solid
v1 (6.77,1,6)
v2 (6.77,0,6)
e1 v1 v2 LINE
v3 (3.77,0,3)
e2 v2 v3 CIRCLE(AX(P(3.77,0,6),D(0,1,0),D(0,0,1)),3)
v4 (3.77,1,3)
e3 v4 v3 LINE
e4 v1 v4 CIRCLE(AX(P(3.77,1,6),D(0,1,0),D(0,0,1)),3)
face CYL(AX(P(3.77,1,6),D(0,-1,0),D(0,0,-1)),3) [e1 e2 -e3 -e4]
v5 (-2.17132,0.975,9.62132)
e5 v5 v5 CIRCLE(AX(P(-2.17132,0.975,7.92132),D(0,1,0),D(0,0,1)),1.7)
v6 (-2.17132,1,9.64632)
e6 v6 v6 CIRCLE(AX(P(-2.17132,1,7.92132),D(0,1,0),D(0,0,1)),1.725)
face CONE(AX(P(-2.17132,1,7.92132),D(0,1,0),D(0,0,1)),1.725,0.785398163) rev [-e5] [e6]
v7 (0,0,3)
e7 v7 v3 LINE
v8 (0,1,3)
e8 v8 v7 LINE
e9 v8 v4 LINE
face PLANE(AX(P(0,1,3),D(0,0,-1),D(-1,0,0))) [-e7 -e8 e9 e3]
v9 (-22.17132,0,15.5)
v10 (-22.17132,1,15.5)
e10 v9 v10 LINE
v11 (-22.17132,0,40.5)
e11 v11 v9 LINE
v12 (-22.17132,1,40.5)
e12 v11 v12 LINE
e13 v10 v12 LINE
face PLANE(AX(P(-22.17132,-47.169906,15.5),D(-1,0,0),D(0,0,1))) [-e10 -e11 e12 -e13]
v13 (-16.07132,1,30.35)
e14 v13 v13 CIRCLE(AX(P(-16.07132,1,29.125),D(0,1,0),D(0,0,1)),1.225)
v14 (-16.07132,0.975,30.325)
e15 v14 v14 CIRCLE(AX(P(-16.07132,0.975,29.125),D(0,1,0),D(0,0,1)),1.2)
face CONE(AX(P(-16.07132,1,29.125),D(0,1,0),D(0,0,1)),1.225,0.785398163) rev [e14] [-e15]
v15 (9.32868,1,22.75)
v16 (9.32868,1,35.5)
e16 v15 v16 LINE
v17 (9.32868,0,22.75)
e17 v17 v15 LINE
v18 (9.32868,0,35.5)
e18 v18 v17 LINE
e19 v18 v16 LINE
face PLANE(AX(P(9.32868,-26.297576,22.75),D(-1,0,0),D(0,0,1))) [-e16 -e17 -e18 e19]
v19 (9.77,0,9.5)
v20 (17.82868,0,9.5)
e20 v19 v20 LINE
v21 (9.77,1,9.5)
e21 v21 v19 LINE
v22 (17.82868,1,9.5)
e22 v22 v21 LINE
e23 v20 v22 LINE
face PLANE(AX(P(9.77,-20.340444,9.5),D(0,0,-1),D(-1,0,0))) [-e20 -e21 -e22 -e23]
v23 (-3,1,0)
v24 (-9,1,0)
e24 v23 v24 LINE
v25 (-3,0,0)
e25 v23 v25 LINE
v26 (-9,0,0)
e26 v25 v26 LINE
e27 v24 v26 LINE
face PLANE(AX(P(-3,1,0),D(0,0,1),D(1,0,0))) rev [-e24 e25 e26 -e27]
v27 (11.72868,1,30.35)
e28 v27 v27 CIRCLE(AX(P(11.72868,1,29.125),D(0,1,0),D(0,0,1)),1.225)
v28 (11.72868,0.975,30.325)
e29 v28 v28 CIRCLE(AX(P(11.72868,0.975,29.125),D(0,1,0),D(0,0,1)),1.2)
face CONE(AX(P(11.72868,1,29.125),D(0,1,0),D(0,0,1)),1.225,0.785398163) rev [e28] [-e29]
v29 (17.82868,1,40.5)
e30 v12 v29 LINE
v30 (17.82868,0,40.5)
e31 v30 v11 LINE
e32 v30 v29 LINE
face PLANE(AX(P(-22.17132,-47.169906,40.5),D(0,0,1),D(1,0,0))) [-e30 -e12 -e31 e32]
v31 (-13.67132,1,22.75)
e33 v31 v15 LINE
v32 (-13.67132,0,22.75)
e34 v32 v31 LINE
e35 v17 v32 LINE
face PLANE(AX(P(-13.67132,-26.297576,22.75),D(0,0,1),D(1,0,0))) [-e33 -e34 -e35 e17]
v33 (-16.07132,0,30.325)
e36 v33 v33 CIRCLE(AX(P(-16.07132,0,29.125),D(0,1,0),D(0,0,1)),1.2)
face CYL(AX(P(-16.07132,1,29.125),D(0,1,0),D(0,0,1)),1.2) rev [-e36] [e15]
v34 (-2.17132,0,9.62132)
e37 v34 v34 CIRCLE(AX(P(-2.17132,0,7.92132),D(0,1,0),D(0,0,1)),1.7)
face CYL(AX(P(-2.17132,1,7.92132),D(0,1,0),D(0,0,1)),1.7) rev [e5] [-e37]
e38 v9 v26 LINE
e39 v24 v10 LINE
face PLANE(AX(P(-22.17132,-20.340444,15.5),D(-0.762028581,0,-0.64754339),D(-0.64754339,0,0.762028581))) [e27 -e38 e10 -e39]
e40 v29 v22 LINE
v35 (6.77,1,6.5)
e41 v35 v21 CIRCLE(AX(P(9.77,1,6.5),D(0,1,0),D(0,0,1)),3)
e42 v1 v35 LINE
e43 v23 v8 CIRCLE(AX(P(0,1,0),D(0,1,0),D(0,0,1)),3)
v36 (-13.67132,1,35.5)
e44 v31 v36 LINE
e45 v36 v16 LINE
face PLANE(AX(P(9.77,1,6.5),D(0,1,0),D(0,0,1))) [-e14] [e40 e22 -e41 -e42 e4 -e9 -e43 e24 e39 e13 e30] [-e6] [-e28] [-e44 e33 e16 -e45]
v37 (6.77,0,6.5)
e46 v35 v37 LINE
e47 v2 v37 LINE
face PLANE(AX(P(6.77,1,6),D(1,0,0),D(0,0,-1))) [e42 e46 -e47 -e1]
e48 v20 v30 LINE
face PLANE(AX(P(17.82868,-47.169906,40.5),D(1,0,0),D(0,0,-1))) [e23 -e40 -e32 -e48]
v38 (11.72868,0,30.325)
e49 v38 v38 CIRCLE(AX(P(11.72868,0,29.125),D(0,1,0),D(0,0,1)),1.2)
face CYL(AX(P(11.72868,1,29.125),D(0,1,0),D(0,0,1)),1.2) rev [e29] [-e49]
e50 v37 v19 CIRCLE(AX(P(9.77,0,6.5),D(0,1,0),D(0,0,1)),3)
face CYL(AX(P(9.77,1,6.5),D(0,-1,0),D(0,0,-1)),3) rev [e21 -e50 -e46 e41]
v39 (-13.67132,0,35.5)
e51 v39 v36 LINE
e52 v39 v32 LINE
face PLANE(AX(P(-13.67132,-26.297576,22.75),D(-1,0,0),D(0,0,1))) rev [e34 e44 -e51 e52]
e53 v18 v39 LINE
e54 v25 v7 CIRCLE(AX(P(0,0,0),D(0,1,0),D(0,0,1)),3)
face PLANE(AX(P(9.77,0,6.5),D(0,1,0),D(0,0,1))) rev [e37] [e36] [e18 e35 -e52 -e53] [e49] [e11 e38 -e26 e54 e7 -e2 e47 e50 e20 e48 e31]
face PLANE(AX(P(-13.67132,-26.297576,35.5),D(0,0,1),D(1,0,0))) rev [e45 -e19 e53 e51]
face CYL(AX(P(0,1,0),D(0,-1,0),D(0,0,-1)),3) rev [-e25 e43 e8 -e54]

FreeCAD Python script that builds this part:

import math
import FreeCAD as App
import Part
import Sketcher

V = App.Vector
Q = App.Units.Quantity

doc = App.newDocument("Part")
body = doc.addObject("PartDesign::Body", "Body")

sketch1 = body.newObject("Sketcher::SketchObject", "Sketch")
sketch1.AttachmentSupport = (doc.getObject("XZ_Plane"), [""])
sketch1.MapMode = "FlatFace"
sketch1.addGeometry([
    Part.LineSegment(V(-3, 0, 0), V(-9, 0, 0)),
    Part.LineSegment(V(-9, 0, 0), V(-9, 15.5, 0)),
    Part.LineSegment(V(-9, 15.5, 0), V(9.8, 15.5, 0)),
    Part.LineSegment(V(9.8, 15.5, 0), V(9.8, 9.5, 0)),
    Part.ArcOfCircle(Part.Circle(V(9.8, 6.5, 0), V(0, 0, 1), 3), math.radians(90), math.radians(180)),
    Part.LineSegment(V(6.8, 6.5, 0), V(6.8, 6, 0)),
    Part.ArcOfCircle(Part.Circle(V(3.8, 6, 0), V(0, 0, 1), 3), math.radians(-90), math.radians(0)),
    Part.LineSegment(V(3.8, 3, 0), V(0, 3, 0)),
    Part.ArcOfCircle(Part.Circle(V(0, 0, 0), V(0, 0, 1), 3), math.radians(90), math.radians(180)),
], False)
sketch1.addConstraint([
    Sketcher.Constraint("Coincident", 0, 2, 1, 1),
    Sketcher.Constraint("Coincident", 1, 2, 2, 1),
    Sketcher.Constraint("Coincident", 2, 2, 3, 1),
    Sketcher.Constraint("Coincident", 3, 2, 4, 1),
    Sketcher.Constraint("Tangent", 4, 2, 5, 1),
    Sketcher.Constraint("Tangent", 5, 2, 6, 2),
    Sketcher.Constraint("Tangent", 6, 1, 7, 1),
    Sketcher.Constraint("Tangent", 7, 2, 8, 1),
    Sketcher.Constraint("Coincident", 8, 2, 0, 1),
    Sketcher.Constraint("Horizontal", 0),
    Sketcher.Constraint("Vertical", 1),
    Sketcher.Constraint("Horizontal", 2),
    Sketcher.Constraint("Vertical", 3),
    Sketcher.Constraint("Vertical", 5),
    Sketcher.Constraint("Horizontal", 7),
    Sketcher.Constraint("Coincident", 8, 3, -1, 1),
    Sketcher.Constraint("Equal", 4, 6),
    Sketcher.Constraint("Equal", 6, 8),
    Sketcher.Constraint("PointOnObject", 0, 2, -1),
    Sketcher.Constraint("Vertical", 4, 3, 2, 2),
    Sketcher.Constraint("Equal", 0, 3),
    Sketcher.Constraint("Radius", 4, 3.0),
    Sketcher.Constraint("DistanceX", 0, 2, 0, 1, 6.0),
    Sketcher.Constraint("DistanceY", 1, 1, 1, 2, 15.5),
    Sketcher.Constraint("DistanceX", 2, 1, 2, 2, 18.77),
])
pad1 = body.newObject("PartDesign::Pad", "Pad")
pad1.Profile = sketch1
pad1.Length = 1
pad1.Reversed = True

sketch2 = body.newObject("Sketcher::SketchObject", "Sketch001")
sketch2.AttachmentSupport = (doc.getObject("YZ_Plane"), [""])
sketch2.MapMode = "FlatFace"
sketch2.AttachmentOffset = App.Placement(V(0, 0, -2.17132), App.Rotation())
sketch2.addGeometry([
    Part.LineSegment(V(0, 7.921, 0), V(1, 7.921, 0)),
    Part.LineSegment(V(1, 7.921, 0), V(1, 9.646, 0)),
    Part.LineSegment(V(1, 9.646, 0), V(0.975, 9.621, 0)),
    Part.LineSegment(V(0.975, 9.621, 0), V(0, 9.621, 0)),
    Part.LineSegment(V(0, 9.621, 0), V(0, 7.921, 0)),
], False)
sketch2.addGeometry(Part.LineSegment(V(1, 7.921, 0), V(0, 7.921, 0)), True)
sketch2.addConstraint([
    Sketcher.Constraint("Coincident", 0, 2, 1, 1),
    Sketcher.Constraint("Coincident", 1, 2, 2, 1),
    Sketcher.Constraint("Coincident", 2, 2, 3, 1),
    Sketcher.Constraint("Coincident", 3, 2, 4, 1),
    Sketcher.Constraint("Coincident", 4, 2, 0, 1),
    Sketcher.Constraint("Horizontal", 0),
    Sketcher.Constraint("Vertical", 1),
    Sketcher.Constraint("Horizontal", 3),
    Sketcher.Constraint("Vertical", 4),
    Sketcher.Constraint("Horizontal", 5),
    Sketcher.Constraint("Coincident", 5, 1, 0, 2),
    Sketcher.Constraint("PointOnObject", 3, 2, -2),
    Sketcher.Constraint("PointOnObject", 5, 2, -2),
    Sketcher.Constraint("DistanceX", 0, 1, 0, 2, 1.0),
    Sketcher.Constraint("Angle", 2, Q("-135 deg")),
    Sketcher.Constraint("DistanceY", 4, 2, 4, 1, 1.7),
    Sketcher.Constraint("DistanceX", 3, 2, 3, 1, 0.975),
    Sketcher.Constraint("DistanceY", -1, 1, 0, 2, 7.92132),
])
groove = body.newObject("PartDesign::Groove", "Groove")
groove.Profile = sketch2
groove.ReferenceAxis = (sketch2, ["Axis0"])
groove.Angle = 360

sketch3 = body.newObject("Sketcher::SketchObject", "Sketch002")
sketch3.AttachmentSupport = (doc.getObject("XZ_Plane"), [""])
sketch3.MapMode = "FlatFace"
sketch3.AttachmentOffset = App.Placement(V(0, 0, -1), App.Rotation())
sketch3.addGeometry([
    Part.LineSegment(V(-22, 16, 0), V(-22, 40, 0)),
    Part.LineSegment(V(-22, 40, 0), V(18, 40, 0)),
    Part.LineSegment(V(18, 40, 0), V(18, 16, 0)),
    Part.LineSegment(V(18, 16, 0), V(-22, 16, 0)),
], False)
sketch3.addConstraint([
    Sketcher.Constraint("Coincident", 0, 2, 1, 1),
    Sketcher.Constraint("Coincident", 1, 2, 2, 1),
    Sketcher.Constraint("Coincident", 2, 2, 3, 1),
    Sketcher.Constraint("Coincident", 3, 2, 0, 1),
    Sketcher.Constraint("Vertical", 0),
    Sketcher.Constraint("Horizontal", 1),
    Sketcher.Constraint("Vertical", 2),
    Sketcher.Constraint("Horizontal", 3),
    Sketcher.Constraint("DistanceX", 1, 1, 1, 2, 40.0),
    Sketcher.Constraint("DistanceY", 0, 1, 0, 2, 25.0),
    Sketcher.Constraint("DistanceY", -1, 1, 0, 2, 40.5),
    Sketcher.Constraint("DistanceX", 0, 2, -1, 1, 22.17132),
])
pad2 = body.newObject("PartDesign::Pad", "Pad001")
pad2.Profile = sketch3
pad2.Length = 1

sketch4 = body.newObject("Sketcher::SketchObject", "Sketch003")
sketch4.AttachmentSupport = (doc.getObject("XZ_Plane"), [""])
sketch4.MapMode = "FlatFace"
sketch4.AttachmentOffset = App.Placement(V(0, 0, -1), App.Rotation())
sketch4.addGeometry([
    Part.LineSegment(V(10, 10, 0), V(10, 16, 0)),
    Part.LineSegment(V(10, 16, 0), V(18, 16, 0)),
    Part.LineSegment(V(18, 16, 0), V(18, 10, 0)),
    Part.LineSegment(V(18, 10, 0), V(10, 10, 0)),
    Part.LineSegment(V(-22, 16, 0), V(-9, 16, 0)),
    Part.LineSegment(V(-9, 16, 0), V(-9, 0, 0)),
    Part.LineSegment(V(-9, 0, 0), V(-22, 16, 0)),
], False)
sketch4.addConstraint([
    Sketcher.Constraint("Coincident", 0, 2, 1, 1),
    Sketcher.Constraint("Coincident", 1, 2, 2, 1),
    Sketcher.Constraint("Coincident", 2, 2, 3, 1),
    Sketcher.Constraint("Coincident", 3, 2, 0, 1),
    Sketcher.Constraint("Coincident", 4, 2, 5, 1),
    Sketcher.Constraint("Coincident", 5, 2, 6, 1),
    Sketcher.Constraint("Coincident", 6, 2, 4, 1),
    Sketcher.Constraint("Vertical", 0),
    Sketcher.Constraint("Horizontal", 1),
    Sketcher.Constraint("Vertical", 2),
    Sketcher.Constraint("Horizontal", 3),
    Sketcher.Constraint("Horizontal", 4),
    Sketcher.Constraint("Vertical", 5),
    Sketcher.Constraint("PointOnObject", 5, 2, -1),
    Sketcher.Constraint("Horizontal", 1, 2, 4, 2),
    Sketcher.Constraint("DistanceY", 0, 1, 0, 2, 6.0),
    Sketcher.Constraint("DistanceY", 5, 2, 5, 1, 15.5),
    Sketcher.Constraint("DistanceX", 4, 2, -1, 1, 9.0),
    Sketcher.Constraint("DistanceX", 6, 2, 1, 2, 40.0),
    Sketcher.Constraint("DistanceX", -1, 1, 0, 2, 9.77),
    Sketcher.Constraint("DistanceX", 1, 1, 1, 2, 8.05868),
])
pad3 = body.newObject("PartDesign::Pad", "Pad002")
pad3.Profile = sketch4
pad3.Length = 1

sketch5 = body.newObject("Sketcher::SketchObject", "Sketch004")
sketch5.AttachmentSupport = (doc.getObject("XZ_Plane"), [""])
sketch5.MapMode = "FlatFace"
sketch5.AttachmentOffset = App.Placement(V(0, 0, -1), App.Rotation())
sketch5.addGeometry([
    Part.LineSegment(V(-14, 23, 0), V(-14, 36, 0)),
    Part.LineSegment(V(-14, 36, 0), V(9, 36, 0)),
    Part.LineSegment(V(9, 36, 0), V(9, 23, 0)),
    Part.LineSegment(V(9, 23, 0), V(-14, 23, 0)),
], False)
sketch5.addConstraint([
    Sketcher.Constraint("Coincident", 0, 2, 1, 1),
    Sketcher.Constraint("Coincident", 1, 2, 2, 1),
    Sketcher.Constraint("Coincident", 2, 2, 3, 1),
    Sketcher.Constraint("Coincident", 3, 2, 0, 1),
    Sketcher.Constraint("Vertical", 0),
    Sketcher.Constraint("Horizontal", 1),
    Sketcher.Constraint("Vertical", 2),
    Sketcher.Constraint("Horizontal", 3),
    Sketcher.Constraint("DistanceX", 1, 1, 1, 2, 23.0),
    Sketcher.Constraint("DistanceY", 0, 1, 0, 2, 12.75),
    Sketcher.Constraint("DistanceY", -1, 1, 0, 2, 35.5),
    Sketcher.Constraint("DistanceX", 0, 2, -1, 1, 13.67132),
])
pocket1 = body.newObject("PartDesign::Pocket", "Pocket")
pocket1.Profile = sketch5
pocket1.Length = 1
pocket1.Reversed = True

sketch6 = body.newObject("Sketcher::SketchObject", "Sketch005")
sketch6.AttachmentSupport = (doc.getObject("YZ_Plane"), [""])
sketch6.MapMode = "FlatFace"
sketch6.AttachmentOffset = App.Placement(V(0, 0, -16.07132), App.Rotation())
sketch6.addGeometry([
    Part.LineSegment(V(0, 29.125, 0), V(1, 29.125, 0)),
    Part.LineSegment(V(1, 29.125, 0), V(1, 30.35, 0)),
    Part.LineSegment(V(1, 30.35, 0), V(0.975, 30.325, 0)),
    Part.LineSegment(V(0.975, 30.325, 0), V(0, 30.325, 0)),
    Part.LineSegment(V(0, 30.325, 0), V(0, 29.125, 0)),
], False)
sketch6.addGeometry(Part.LineSegment(V(1, 29.125, 0), V(0, 29.125, 0)), True)
sketch6.addConstraint([
    Sketcher.Constraint("Coincident", 0, 2, 1, 1),
    Sketcher.Constraint("Coincident", 1, 2, 2, 1),
    Sketcher.Constraint("Coincident", 2, 2, 3, 1),
    Sketcher.Constraint("Coincident", 3, 2, 4, 1),
    Sketcher.Constraint("Coincident", 4, 2, 0, 1),
    Sketcher.Constraint("Horizontal", 0),
    Sketcher.Constraint("Vertical", 1),
    Sketcher.Constraint("Horizontal", 3),
    Sketcher.Constraint("Vertical", 4),
    Sketcher.Constraint("Horizontal", 5),
    Sketcher.Constraint("Coincident", 5, 1, 0, 2),
    Sketcher.Constraint("PointOnObject", 3, 2, -2),
    Sketcher.Constraint("PointOnObject", 5, 2, -2),
    Sketcher.Constraint("DistanceX", 0, 1, 0, 2, 1.0),
    Sketcher.Constraint("Angle", 2, Q("-135 deg")),
    Sketcher.Constraint("DistanceY", 4, 2, 4, 1, 1.2),
    Sketcher.Constraint("DistanceX", 3, 2, 3, 1, 0.975),
    Sketcher.Constraint("DistanceY", -1, 1, 1, 2, 30.35),
])
groove2 = body.newObject("PartDesign::Groove", "Groove001")
groove2.Profile = sketch6
groove2.ReferenceAxis = (sketch6, ["Axis0"])
groove2.Angle = 360
doc.recompute()

linearpattern = body.newObject("PartDesign::LinearPattern", "LinearPattern")
linearpattern.Originals = [groove2]
linearpattern.Direction = (doc.getObject("X_Axis"), [""])
linearpattern.Mode = "offset"
linearpattern.Offset = 27.8
linearpattern.Occurrences = 2
body.Tip = linearpattern

doc.recompute()
